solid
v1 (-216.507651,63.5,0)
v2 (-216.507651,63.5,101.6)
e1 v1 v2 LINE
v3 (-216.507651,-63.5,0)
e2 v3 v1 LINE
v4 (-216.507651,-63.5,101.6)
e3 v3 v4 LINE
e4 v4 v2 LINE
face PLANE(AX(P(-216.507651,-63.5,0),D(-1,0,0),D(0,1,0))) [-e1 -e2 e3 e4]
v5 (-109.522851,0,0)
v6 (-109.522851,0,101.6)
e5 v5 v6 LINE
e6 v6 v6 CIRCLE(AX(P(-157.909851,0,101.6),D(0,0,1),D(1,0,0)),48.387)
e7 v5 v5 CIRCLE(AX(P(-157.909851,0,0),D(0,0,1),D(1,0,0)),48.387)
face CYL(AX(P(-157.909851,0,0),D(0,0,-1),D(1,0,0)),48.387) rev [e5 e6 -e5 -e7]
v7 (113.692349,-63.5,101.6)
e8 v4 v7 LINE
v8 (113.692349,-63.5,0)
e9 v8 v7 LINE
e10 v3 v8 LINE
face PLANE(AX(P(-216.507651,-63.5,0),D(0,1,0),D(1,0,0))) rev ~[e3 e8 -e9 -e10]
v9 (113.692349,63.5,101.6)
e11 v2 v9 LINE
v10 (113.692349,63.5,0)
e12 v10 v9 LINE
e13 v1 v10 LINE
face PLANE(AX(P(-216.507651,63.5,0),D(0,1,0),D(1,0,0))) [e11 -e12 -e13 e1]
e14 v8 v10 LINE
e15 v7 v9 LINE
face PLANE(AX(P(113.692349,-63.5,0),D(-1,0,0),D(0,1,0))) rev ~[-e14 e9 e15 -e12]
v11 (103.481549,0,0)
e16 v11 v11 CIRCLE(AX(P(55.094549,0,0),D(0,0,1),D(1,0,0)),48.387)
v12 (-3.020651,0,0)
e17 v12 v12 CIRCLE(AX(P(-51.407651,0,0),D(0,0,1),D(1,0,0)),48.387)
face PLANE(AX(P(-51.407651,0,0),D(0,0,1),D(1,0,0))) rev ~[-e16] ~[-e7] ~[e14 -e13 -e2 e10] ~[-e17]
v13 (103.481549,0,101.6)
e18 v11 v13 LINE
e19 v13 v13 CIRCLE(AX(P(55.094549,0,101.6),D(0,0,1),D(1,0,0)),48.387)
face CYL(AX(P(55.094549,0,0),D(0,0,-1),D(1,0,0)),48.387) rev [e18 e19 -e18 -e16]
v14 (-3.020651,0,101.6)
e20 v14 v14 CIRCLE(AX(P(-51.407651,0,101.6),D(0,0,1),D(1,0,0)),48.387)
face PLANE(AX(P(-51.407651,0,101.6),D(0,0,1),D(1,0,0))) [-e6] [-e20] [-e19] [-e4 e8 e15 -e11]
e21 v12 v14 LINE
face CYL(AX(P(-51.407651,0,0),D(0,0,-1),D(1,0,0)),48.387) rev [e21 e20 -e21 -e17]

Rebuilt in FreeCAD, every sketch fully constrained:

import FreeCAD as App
import Part
import Sketcher
from FreeCAD import Vector
Q = App.Units.Quantity

doc = App.newDocument("Part")
body = doc.addObject("PartDesign::Body", "Body")

# Sketch on XY plane
sketch1 = body.newObject("Sketcher::SketchObject", "Sketch")
sketch1.AttachmentSupport = (doc.getObject("XY_Plane"), [""])
sketch1.MapMode = "FlatFace"
sketch1.addGeometry(Part.LineSegment(Vector(-217, 64, 0), Vector(-217, -64, 0)), False)
sketch1.addGeometry(Part.LineSegment(Vector(-217, -64, 0), Vector(114, -64, 0)), False)
sketch1.addGeometry(Part.LineSegment(Vector(114, -64, 0), Vector(114, 64, 0)), False)
sketch1.addGeometry(Part.LineSegment(Vector(114, 64, 0), Vector(-217, 64, 0)), False)
sketch1.addGeometry(Part.Circle(Vector(-158, 0, 0), Vector(0, 0, 1), 48), False)
sketch1.addGeometry(Part.Circle(Vector(-51, 0, 0), Vector(0, 0, 1), 48), False)
sketch1.addGeometry(Part.Circle(Vector(55, 0, 0), Vector(0, 0, 1), 48), False)
sketch1.addConstraint(Sketcher.Constraint("Coincident", 0, 2, 1, 1))
sketch1.addConstraint(Sketcher.Constraint("Coincident", 1, 2, 2, 1))
sketch1.addConstraint(Sketcher.Constraint("Coincident", 2, 2, 3, 1))
sketch1.addConstraint(Sketcher.Constraint("Coincident", 3, 2, 0, 1))
sketch1.addConstraint(Sketcher.Constraint("Vertical", 0))
sketch1.addConstraint(Sketcher.Constraint("Horizontal", 1))
sketch1.addConstraint(Sketcher.Constraint("Vertical", 2))
sketch1.addConstraint(Sketcher.Constraint("Horizontal", 3))
sketch1.addConstraint(Sketcher.Constraint("Equal", 4, 5))
sketch1.addConstraint(Sketcher.Constraint("Equal", 5, 6))
sketch1.addConstraint(Sketcher.Constraint("PointOnObject", 4, 3, -1))
sketch1.addConstraint(Sketcher.Constraint("PointOnObject", 5, 3, -1))
sketch1.addConstraint(Sketcher.Constraint("PointOnObject", 6, 3, -1))
sketch1.addConstraint(Sketcher.Constraint("Diameter", 4, Q("3.81 in")))
sketch1.addConstraint(Sketcher.Constraint("DistanceX", 1, 1, 1, 2, Q("13 in")))
sketch1.addConstraint(Sketcher.Constraint("DistanceY", 0, 2, 0, 1, Q("5 in")))
sketch1.addConstraint(Sketcher.Constraint("DistanceY", 0, 2, -1, 1, Q("2.5 in")))
sketch1.addConstraint(Sketcher.Constraint("DistanceX", 0, 2, 5, 3, Q("6.5 in")))
sketch1.addConstraint(Sketcher.Constraint("DistanceX", 4, 3, 5, 3, Q("4.193 in")))
sketch1.addConstraint(Sketcher.Constraint("DistanceX", 5, 3, 6, 3, Q("4.193 in")))
sketch1.addConstraint(Sketcher.Constraint("DistanceX", 4, 3, -1, 1, 157.909851))
pad1 = body.newObject("PartDesign::Pad", "Pad")
pad1.Profile = sketch1
pad1.Length = Q("4 in")

doc.recompute()
